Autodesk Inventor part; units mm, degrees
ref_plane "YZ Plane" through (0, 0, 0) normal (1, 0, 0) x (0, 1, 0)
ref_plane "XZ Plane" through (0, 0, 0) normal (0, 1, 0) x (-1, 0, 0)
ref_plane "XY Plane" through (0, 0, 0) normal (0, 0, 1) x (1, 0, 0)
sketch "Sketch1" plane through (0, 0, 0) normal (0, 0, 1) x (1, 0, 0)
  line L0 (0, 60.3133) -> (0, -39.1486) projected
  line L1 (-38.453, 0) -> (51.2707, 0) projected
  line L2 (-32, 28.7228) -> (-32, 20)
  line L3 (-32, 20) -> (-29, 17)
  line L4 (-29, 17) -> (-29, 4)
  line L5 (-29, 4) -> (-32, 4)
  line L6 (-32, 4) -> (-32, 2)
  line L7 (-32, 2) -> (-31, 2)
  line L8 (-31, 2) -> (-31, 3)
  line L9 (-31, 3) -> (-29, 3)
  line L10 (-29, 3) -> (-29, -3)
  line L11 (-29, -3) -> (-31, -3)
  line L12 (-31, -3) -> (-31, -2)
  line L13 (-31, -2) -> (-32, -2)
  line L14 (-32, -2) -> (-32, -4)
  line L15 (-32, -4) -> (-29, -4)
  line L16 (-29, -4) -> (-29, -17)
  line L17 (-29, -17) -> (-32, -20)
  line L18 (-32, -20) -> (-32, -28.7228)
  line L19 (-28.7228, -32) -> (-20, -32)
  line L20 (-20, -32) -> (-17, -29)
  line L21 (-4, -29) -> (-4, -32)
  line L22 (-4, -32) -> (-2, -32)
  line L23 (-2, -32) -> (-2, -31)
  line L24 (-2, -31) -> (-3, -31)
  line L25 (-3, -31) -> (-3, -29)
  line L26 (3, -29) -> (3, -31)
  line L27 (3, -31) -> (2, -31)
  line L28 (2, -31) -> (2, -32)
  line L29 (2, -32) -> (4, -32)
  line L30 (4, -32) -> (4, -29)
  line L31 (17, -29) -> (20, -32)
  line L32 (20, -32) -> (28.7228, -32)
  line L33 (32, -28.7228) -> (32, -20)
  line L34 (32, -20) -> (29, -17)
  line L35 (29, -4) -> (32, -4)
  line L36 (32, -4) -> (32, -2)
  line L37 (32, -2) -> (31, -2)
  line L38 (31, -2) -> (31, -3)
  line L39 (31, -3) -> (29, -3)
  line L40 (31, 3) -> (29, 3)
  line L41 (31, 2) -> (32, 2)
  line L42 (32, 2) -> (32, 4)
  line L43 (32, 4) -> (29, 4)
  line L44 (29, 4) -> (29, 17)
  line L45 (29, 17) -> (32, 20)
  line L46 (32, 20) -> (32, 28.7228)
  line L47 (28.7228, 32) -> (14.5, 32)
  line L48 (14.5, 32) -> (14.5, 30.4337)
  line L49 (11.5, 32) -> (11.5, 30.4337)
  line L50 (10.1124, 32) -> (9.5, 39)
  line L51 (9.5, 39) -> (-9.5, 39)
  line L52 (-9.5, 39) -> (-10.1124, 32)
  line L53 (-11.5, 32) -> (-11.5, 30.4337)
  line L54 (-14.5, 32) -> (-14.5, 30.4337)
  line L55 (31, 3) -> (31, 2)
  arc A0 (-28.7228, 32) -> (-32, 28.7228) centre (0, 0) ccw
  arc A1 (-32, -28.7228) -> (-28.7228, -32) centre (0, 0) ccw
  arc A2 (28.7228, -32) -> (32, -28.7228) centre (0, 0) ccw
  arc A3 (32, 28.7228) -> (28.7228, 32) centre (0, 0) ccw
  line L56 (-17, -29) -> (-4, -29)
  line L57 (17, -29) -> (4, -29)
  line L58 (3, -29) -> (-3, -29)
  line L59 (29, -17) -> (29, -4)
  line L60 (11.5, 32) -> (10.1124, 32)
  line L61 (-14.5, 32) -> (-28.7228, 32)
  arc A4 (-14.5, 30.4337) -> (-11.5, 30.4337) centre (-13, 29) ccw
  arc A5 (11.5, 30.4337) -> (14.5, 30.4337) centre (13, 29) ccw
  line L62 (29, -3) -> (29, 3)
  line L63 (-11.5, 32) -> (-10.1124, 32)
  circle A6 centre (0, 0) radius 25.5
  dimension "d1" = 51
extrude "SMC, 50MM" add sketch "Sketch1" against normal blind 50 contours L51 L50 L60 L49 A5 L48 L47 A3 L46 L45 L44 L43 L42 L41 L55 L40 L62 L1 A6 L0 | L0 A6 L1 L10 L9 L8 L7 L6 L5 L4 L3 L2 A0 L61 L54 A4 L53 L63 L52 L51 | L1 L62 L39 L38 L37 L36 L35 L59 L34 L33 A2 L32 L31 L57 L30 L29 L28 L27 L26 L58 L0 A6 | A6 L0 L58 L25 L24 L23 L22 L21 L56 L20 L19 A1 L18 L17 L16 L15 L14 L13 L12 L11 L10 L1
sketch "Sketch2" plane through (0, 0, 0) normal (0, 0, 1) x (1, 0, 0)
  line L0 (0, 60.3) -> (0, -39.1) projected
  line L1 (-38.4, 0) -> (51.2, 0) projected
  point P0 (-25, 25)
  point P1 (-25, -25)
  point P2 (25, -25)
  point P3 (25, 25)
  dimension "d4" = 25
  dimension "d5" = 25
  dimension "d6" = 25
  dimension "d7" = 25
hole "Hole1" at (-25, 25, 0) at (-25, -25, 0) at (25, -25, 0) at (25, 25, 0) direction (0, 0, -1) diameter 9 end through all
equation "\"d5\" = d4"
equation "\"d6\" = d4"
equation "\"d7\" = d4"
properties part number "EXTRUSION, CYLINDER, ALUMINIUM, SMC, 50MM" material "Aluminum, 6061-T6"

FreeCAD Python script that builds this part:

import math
import FreeCAD as App
import Part
import Sketcher

V = App.Vector
Q = App.Units.Quantity

doc = App.newDocument("Part")
params = doc.addObject("Spreadsheet::Sheet", "Params")
for row, (alias, value) in enumerate([
    ("sketch1_diameter", "51 mm"),
    ("sketch1_radius", "43 mm"),
    ("sketch1_width", "19 mm"),
    ("sketch1_width2", "3 mm"),
    ("sketch1_width3", "1 mm"),
    ("pad1_length", "50 mm"),
    ("sketch2_diameter", "9 mm"),
    ("hole_diameter", "9 mm"),
], start=1):
    params.set(f"A{row}", alias)
    params.set(f"B{row}", "=" + value)
    params.setAlias(f"B{row}", alias)

body = doc.addObject("PartDesign::Body", "Body")

# Sketch on XY plane
sketch1 = doc.addObject("Sketcher::SketchObject", "Sketch")
body.addObject(sketch1)
sketch1.AttachmentSupport = (doc.XY_Plane, [""])
sketch1.MapMode = "FlatFace"
sketch1.addGeometry([
    Part.LineSegment(V(9.5, 39, 0), V(-9.5, 39, 0)),  # 0
    Part.LineSegment(V(-9.5, 39, 0), V(-10.1, 32, 0)),  # 1
    Part.LineSegment(V(-10.1, 32, 0), V(-11.5, 32, 0)),  # 2
    Part.LineSegment(V(-11.5, 32, 0), V(-11.5, 30.4, 0)),  # 3
    Part.ArcOfCircle(Part.Circle(V(-13, 29, 0), V(0, 0, 1), 2.1), math.radians(136), math.radians(404)),  # 4
    Part.LineSegment(V(-14.5, 30.4, 0), V(-14.5, 32, 0)),  # 5
    Part.LineSegment(V(-14.5, 32, 0), V(-28.7, 32, 0)),  # 6
    Part.ArcOfCircle(Part.Circle(V(0, 0, 0), V(0, 0, 1), 43), math.radians(131.91), math.radians(138.09)),  # 7
    Part.LineSegment(V(-32, 28.7, 0), V(-32, 20, 0)),  # 8
    Part.LineSegment(V(-32, 20, 0), V(-29, 17, 0)),  # 9
    Part.LineSegment(V(-29, 17, 0), V(-29, 4, 0)),  # 10
    Part.LineSegment(V(-29, 4, 0), V(-32, 4, 0)),  # 11
    Part.LineSegment(V(-32, 4, 0), V(-32, 2, 0)),  # 12
    Part.LineSegment(V(-32, 2, 0), V(-31, 2, 0)),  # 13
    Part.LineSegment(V(-31, 2, 0), V(-31, 3, 0)),  # 14
    Part.LineSegment(V(-31, 3, 0), V(-29, 3, 0)),  # 15
    Part.LineSegment(V(-29, 3, 0), V(-29, -3, 0)),  # 16
    Part.LineSegment(V(-29, -3, 0), V(-31, -3, 0)),  # 17
    Part.LineSegment(V(-31, -3, 0), V(-31, -2, 0)),  # 18
    Part.LineSegment(V(-31, -2, 0), V(-32, -2, 0)),  # 19
    Part.LineSegment(V(-32, -2, 0), V(-32, -4, 0)),  # 20
    Part.LineSegment(V(-32, -4, 0), V(-29, -4, 0)),  # 21
    Part.LineSegment(V(-29, -4, 0), V(-29, -17, 0)),  # 22
    Part.LineSegment(V(-29, -17, 0), V(-32, -20, 0)),  # 23
    Part.LineSegment(V(-32, -20, 0), V(-32, -28.7, 0)),  # 24
    Part.ArcOfCircle(Part.Circle(V(0, 0, 0), V(0, 0, 1), 43), math.radians(-138.09), math.radians(-131.91)),  # 25
    Part.LineSegment(V(-28.7, -32, 0), V(-20, -32, 0)),  # 26
    Part.LineSegment(V(-20, -32, 0), V(-17, -29, 0)),  # 27
    Part.LineSegment(V(-17, -29, 0), V(-4, -29, 0)),  # 28
    Part.LineSegment(V(-4, -29, 0), V(-4, -32, 0)),  # 29
    Part.LineSegment(V(-4, -32, 0), V(-2, -32, 0)),  # 30
    Part.LineSegment(V(-2, -32, 0), V(-2, -31, 0)),  # 31
    Part.LineSegment(V(-2, -31, 0), V(-3, -31, 0)),  # 32
    Part.LineSegment(V(-3, -31, 0), V(-3, -29, 0)),  # 33
    Part.LineSegment(V(-3, -29, 0), V(3, -29, 0)),  # 34
    Part.LineSegment(V(3, -29, 0), V(3, -31, 0)),  # 35
    Part.LineSegment(V(3, -31, 0), V(2, -31, 0)),  # 36
    Part.LineSegment(V(2, -31, 0), V(2, -32, 0)),  # 37
    Part.LineSegment(V(2, -32, 0), V(4, -32, 0)),  # 38
    Part.LineSegment(V(4, -32, 0), V(4, -29, 0)),  # 39
    Part.LineSegment(V(4, -29, 0), V(17, -29, 0)),  # 40
    Part.LineSegment(V(17, -29, 0), V(20, -32, 0)),  # 41
    Part.LineSegment(V(20, -32, 0), V(28.7, -32, 0)),  # 42
    Part.ArcOfCircle(Part.Circle(V(0, 0, 0), V(0, 0, 1), 43), math.radians(-48.09), math.radians(-41.91)),  # 43
    Part.LineSegment(V(32, -28.7, 0), V(32, -20, 0)),  # 44
    Part.LineSegment(V(32, -20, 0), V(29, -17, 0)),  # 45
    Part.LineSegment(V(29, -17, 0), V(29, -4, 0)),  # 46
    Part.LineSegment(V(29, -4, 0), V(32, -4, 0)),  # 47
    Part.LineSegment(V(32, -4, 0), V(32, -2, 0)),  # 48
    Part.LineSegment(V(32, -2, 0), V(31, -2, 0)),  # 49
    Part.LineSegment(V(31, -2, 0), V(31, -3, 0)),  # 50
    Part.LineSegment(V(31, -3, 0), V(29, -3, 0)),  # 51
    Part.LineSegment(V(29, -3, 0), V(29, 3, 0)),  # 52
    Part.LineSegment(V(29, 3, 0), V(31, 3, 0)),  # 53
    Part.LineSegment(V(31, 3, 0), V(31, 2, 0)),  # 54
    Part.LineSegment(V(31, 2, 0), V(32, 2, 0)),  # 55
    Part.LineSegment(V(32, 2, 0), V(32, 4, 0)),  # 56
    Part.LineSegment(V(32, 4, 0), V(29, 4, 0)),  # 57
    Part.LineSegment(V(29, 4, 0), V(29, 17, 0)),  # 58
    Part.LineSegment(V(29, 17, 0), V(32, 20, 0)),  # 59
    Part.LineSegment(V(32, 20, 0), V(32, 28.7, 0)),  # 60
    Part.ArcOfCircle(Part.Circle(V(0, 0, 0), V(0, 0, 1), 43), math.radians(41.91), math.radians(48.09)),  # 61
    Part.LineSegment(V(28.7, 32, 0), V(14.5, 32, 0)),  # 62
    Part.LineSegment(V(14.5, 32, 0), V(14.5, 30.4, 0)),  # 63
    Part.ArcOfCircle(Part.Circle(V(13, 29, 0), V(0, 0, 1), 2.1), math.radians(136), math.radians(404)),  # 64
    Part.LineSegment(V(11.5, 30.4, 0), V(11.5, 32, 0)),  # 65
    Part.LineSegment(V(11.5, 32, 0), V(10.1, 32, 0)),  # 66
    Part.LineSegment(V(10.1, 32, 0), V(9.5, 39, 0)),  # 67
    Part.Circle(V(0, 0, 0), V(0, 0, 1), 25.5),  # 68
], False)
sketch1.addConstraint([
    Sketcher.Constraint("Coincident", 0, 2, 1, 1),
    Sketcher.Constraint("Coincident", 1, 2, 2, 1),
    Sketcher.Constraint("Coincident", 2, 2, 3, 1),
    Sketcher.Constraint("Coincident", 3, 2, 4, 2),
    Sketcher.Constraint("Coincident", 4, 1, 5, 1),
    Sketcher.Constraint("Coincident", 5, 2, 6, 1),
    Sketcher.Constraint("Coincident", 6, 2, 7, 1),
    Sketcher.Constraint("Coincident", 7, 2, 8, 1),
    Sketcher.Constraint("Coincident", 8, 2, 9, 1),
    Sketcher.Constraint("Coincident", 9, 2, 10, 1),
    Sketcher.Constraint("Coincident", 10, 2, 11, 1),
    Sketcher.Constraint("Coincident", 11, 2, 12, 1),
    Sketcher.Constraint("Coincident", 12, 2, 13, 1),
    Sketcher.Constraint("Coincident", 13, 2, 14, 1),
    Sketcher.Constraint("Coincident", 14, 2, 15, 1),
    Sketcher.Constraint("Coincident", 15, 2, 16, 1),
    Sketcher.Constraint("Coincident", 16, 2, 17, 1),
    Sketcher.Constraint("Coincident", 17, 2, 18, 1),
    Sketcher.Constraint("Coincident", 18, 2, 19, 1),
    Sketcher.Constraint("Coincident", 19, 2, 20, 1),
    Sketcher.Constraint("Coincident", 20, 2, 21, 1),
    Sketcher.Constraint("Coincident", 21, 2, 22, 1),
    Sketcher.Constraint("Coincident", 22, 2, 23, 1),
    Sketcher.Constraint("Coincident", 23, 2, 24, 1),
    Sketcher.Constraint("Coincident", 24, 2, 25, 1),
    Sketcher.Constraint("Coincident", 25, 2, 26, 1),
    Sketcher.Constraint("Coincident", 26, 2, 27, 1),
    Sketcher.Constraint("Coincident", 27, 2, 28, 1),
    Sketcher.Constraint("Coincident", 28, 2, 29, 1),
    Sketcher.Constraint("Coincident", 29, 2, 30, 1),
    Sketcher.Constraint("Coincident", 30, 2, 31, 1),
    Sketcher.Constraint("Coincident", 31, 2, 32, 1),
    Sketcher.Constraint("Coincident", 32, 2, 33, 1),
    Sketcher.Constraint("Coincident", 33, 2, 34, 1),
    Sketcher.Constraint("Coincident", 34, 2, 35, 1),
    Sketcher.Constraint("Coincident", 35, 2, 36, 1),
    Sketcher.Constraint("Coincident", 36, 2, 37, 1),
    Sketcher.Constraint("Coincident", 37, 2, 38, 1),
    Sketcher.Constraint("Coincident", 38, 2, 39, 1),
    Sketcher.Constraint("Coincident", 39, 2, 40, 1),
    Sketcher.Constraint("Coincident", 40, 2, 41, 1),
    Sketcher.Constraint("Coincident", 41, 2, 42, 1),
    Sketcher.Constraint("Coincident", 42, 2, 43, 1),
    Sketcher.Constraint("Coincident", 43, 2, 44, 1),
    Sketcher.Constraint("Coincident", 44, 2, 45, 1),
    Sketcher.Constraint("Coincident", 45, 2, 46, 1),
    Sketcher.Constraint("Coincident", 46, 2, 47, 1),
    Sketcher.Constraint("Coincident", 47, 2, 48, 1),
    Sketcher.Constraint("Coincident", 48, 2, 49, 1),
    Sketcher.Constraint("Coincident", 49, 2, 50, 1),
    Sketcher.Constraint("Coincident", 50, 2, 51, 1),
    Sketcher.Constraint("Coincident", 51, 2, 52, 1),
    Sketcher.Constraint("Coincident", 52, 2, 53, 1),
    Sketcher.Constraint("Coincident", 53, 2, 54, 1),
    Sketcher.Constraint("Coincident", 54, 2, 55, 1),
    Sketcher.Constraint("Coincident", 55, 2, 56, 1),
    Sketcher.Constraint("Coincident", 56, 2, 57, 1),
    Sketcher.Constraint("Coincident", 57, 2, 58, 1),
    Sketcher.Constraint("Coincident", 58, 2, 59, 1),
    Sketcher.Constraint("Coincident", 59, 2, 60, 1),
    Sketcher.Constraint("Coincident", 60, 2, 61, 1),
    Sketcher.Constraint("Coincident", 61, 2, 62, 1),
    Sketcher.Constraint("Coincident", 62, 2, 63, 1),
    Sketcher.Constraint("Coincident", 63, 2, 64, 2),
    Sketcher.Constraint("Coincident", 64, 1, 65, 1),
    Sketcher.Constraint("Coincident", 65, 2, 66, 1),
    Sketcher.Constraint("Coincident", 66, 2, 67, 1),
    Sketcher.Constraint("Coincident", 67, 2, 0, 1),
    Sketcher.Constraint("Horizontal", 0),
    Sketcher.Constraint("Horizontal", 2),
    Sketcher.Constraint("Vertical", 3),
    Sketcher.Constraint("Vertical", 5),
    Sketcher.Constraint("Horizontal", 6),
    Sketcher.Constraint("Vertical", 8),
    Sketcher.Constraint("Vertical", 10),
    Sketcher.Constraint("Horizontal", 11),
    Sketcher.Constraint("Vertical", 12),
    Sketcher.Constraint("Horizontal", 13),
    Sketcher.Constraint("Vertical", 14),
    Sketcher.Constraint("Horizontal", 15),
    Sketcher.Constraint("Vertical", 16),
    Sketcher.Constraint("Horizontal", 17),
    Sketcher.Constraint("Vertical", 18),
    Sketcher.Constraint("Horizontal", 19),
    Sketcher.Constraint("Vertical", 20),
    Sketcher.Constraint("Horizontal", 21),
    Sketcher.Constraint("Vertical", 22),
    Sketcher.Constraint("Vertical", 24),
    Sketcher.Constraint("Horizontal", 26),
    Sketcher.Constraint("Horizontal", 28),
    Sketcher.Constraint("Vertical", 29),
    Sketcher.Constraint("Horizontal", 30),
    Sketcher.Constraint("Vertical", 31),
    Sketcher.Constraint("Horizontal", 32),
    Sketcher.Constraint("Vertical", 33),
    Sketcher.Constraint("Horizontal", 34),
    Sketcher.Constraint("Vertical", 35),
    Sketcher.Constraint("Horizontal", 36),
    Sketcher.Constraint("Vertical", 37),
    Sketcher.Constraint("Horizontal", 38),
    Sketcher.Constraint("Vertical", 39),
    Sketcher.Constraint("Horizontal", 40),
    Sketcher.Constraint("Horizontal", 42),
    Sketcher.Constraint("Vertical", 44),
    Sketcher.Constraint("Vertical", 46),
    Sketcher.Constraint("Horizontal", 47),
    Sketcher.Constraint("Vertical", 48),
    Sketcher.Constraint("Horizontal", 49),
    Sketcher.Constraint("Vertical", 50),
    Sketcher.Constraint("Horizontal", 51),
    Sketcher.Constraint("Vertical", 52),
    Sketcher.Constraint("Horizontal", 53),
    Sketcher.Constraint("Vertical", 54),
    Sketcher.Constraint("Horizontal", 55),
    Sketcher.Constraint("Vertical", 56),
    Sketcher.Constraint("Horizontal", 57),
    Sketcher.Constraint("Vertical", 58),
    Sketcher.Constraint("Vertical", 60),
    Sketcher.Constraint("Horizontal", 62),
    Sketcher.Constraint("Vertical", 63),
    Sketcher.Constraint("Vertical", 65),
    Sketcher.Constraint("Horizontal", 66),
    Sketcher.Constraint("Coincident", 7, 3, -1, 1),
    Sketcher.Constraint("Coincident", 25, 3, -1, 1),
    Sketcher.Constraint("Coincident", 43, 3, -1, 1),
    Sketcher.Constraint("Coincident", 61, 3, -1, 1),
    Sketcher.Constraint("Coincident", 68, 3, -1, 1),
    Sketcher.Constraint("Equal", 7, 25),
    Sketcher.Constraint("Equal", 25, 43),
    Sketcher.Constraint("Equal", 43, 61),
    Sketcher.Constraint("Equal", 4, 64),
    Sketcher.Constraint("Symmetric", 8, 2, 44, 2, -1, 1),
    Sketcher.Constraint("Symmetric", 9, 2, 45, 2, -1, 1),
    Sketcher.Constraint("Symmetric", 11, 2, 47, 2, -1, 1),
    Sketcher.Constraint("Symmetric", 13, 2, 49, 2, -1, 1),
    Sketcher.Constraint("Symmetric", 15, 2, 51, 2, -1, 1),
    Sketcher.Constraint("Symmetric", 17, 2, 53, 2, -1, 1),
    Sketcher.Constraint("Symmetric", 19, 2, 55, 2, -1, 1),
    Sketcher.Constraint("Symmetric", 21, 2, 57, 2, -1, 1),
    Sketcher.Constraint("Symmetric", 23, 2, 59, 2, -1, 1),
    Sketcher.Constraint("Symmetric", 4, 3, 64, 3, -2),
    Sketcher.Constraint("Symmetric", 32, 2, 35, 2, -2),
    Sketcher.Constraint("Symmetric", 30, 2, 37, 2, -2),
    Sketcher.Constraint("Symmetric", 28, 2, 39, 2, -2),
    Sketcher.Constraint("Symmetric", 26, 2, 41, 2, -2),
    Sketcher.Constraint("Symmetric", 23, 2, 44, 2, -2),
    Sketcher.Constraint("Symmetric", 22, 2, 45, 2, -2),
    Sketcher.Constraint("Symmetric", 20, 2, 47, 2, -2),
    Sketcher.Constraint("Symmetric", 18, 2, 49, 2, -2),
    Sketcher.Constraint("Symmetric", 5, 2, 62, 2, -2),
    Sketcher.Constraint("Symmetric", 2, 2, 65, 2, -2),
    Sketcher.Constraint("Perpendicular", 9, 23),
    Sketcher.Constraint("Parallel", 23, 27),
    Sketcher.Constraint("Perpendicular", 27, 41),
    Sketcher.Constraint("Perpendicular", 45, 59),
    Sketcher.Constraint("Horizontal", 3, 2, 4, 1),
    Sketcher.Constraint("Horizontal", 2, 2, 5, 2),
    Sketcher.Constraint("Horizontal", 26, 2, 29, 2),
    Sketcher.Constraint("Horizontal", 28, 2, 33, 2),
    Sketcher.Constraint("Horizontal", 17, 2, 50, 2),
    Sketcher.Constraint("Vertical", 8, 2, 11, 2),
    Sketcher.Constraint("Vertical", 10, 2, 15, 2),
    Sketcher.Constraint("Vertical", 6, 2, 25, 2),
    Sketcher.Constraint("Equal", 17, 30),
    Sketcher.Constraint("Equal", 19, 32),
    Sketcher.Constraint("Equal", 2, 66),
    Sketcher.Constraint("Equal", 42, 8),
    Sketcher.Constraint("Equal", 40, 10),
    Sketcher.Constraint("Equal", 53, 12),
    Sketcher.Constraint("Equal", 55, 14),
    Sketcher.Constraint("Equal", 34, 16),
    Sketcher.Constraint("Equal", 57, 29),
    Sketcher.Constraint("Equal", 18, 31),
    Sketcher.Constraint("Equal", 1, 67),
    Sketcher.Constraint("Diameter", 68, Q("51 mm")),
    Sketcher.Constraint("Radius", 7, Q("43 mm")),
    Sketcher.Constraint("DistanceX", 0, 2, 0, 1, Q("19 mm")),
    Sketcher.Constraint("DistanceX", 11, 2, 11, 1, Q("3 mm")),
    Sketcher.Constraint("DistanceX", 13, 1, 13, 2, Q("1 mm")),
    Sketcher.Constraint("DistanceX", 28, 1, 28, 2, Q("13 mm")),
    Sketcher.Constraint("DistanceX", 34, 1, 34, 2, Q("6 mm")),
    Sketcher.Constraint("Angle", 1, Q("-94.9998 deg")),
    Sketcher.Constraint("DistanceX", 4, 3, -1, 1, Q("13 mm")),
    Sketcher.Constraint("DistanceY", -1, 1, 4, 3, Q("29 mm")),
    Sketcher.Constraint("DistanceY", -1, 1, 0, 2, Q("39 mm")),
    Sketcher.Constraint("DistanceY", -1, 1, 1, 2, Q("32 mm")),
    Sketcher.Constraint("Radius", 4, Q("2.075 mm")),
    Sketcher.Constraint("DistanceX", 2, 2, -1, 1, Q("11.5 mm")),
])
sketch1.setExpression("Constraints[174]", "Params.sketch1_diameter")
sketch1.setExpression("Constraints[175]", "Params.sketch1_radius")
sketch1.setExpression("Constraints[176]", "Params.sketch1_width")
sketch1.setExpression("Constraints[177]", "Params.sketch1_width2")
sketch1.setExpression("Constraints[178]", "Params.sketch1_width3")
pad1 = doc.addObject("PartDesign::Pad", "Pad")
body.addObject(pad1)
pad1.Profile = sketch1
pad1.setExpression("Length", "Params.pad1_length")
pad1.Reversed = True

# Sketch on XY plane
sketch2 = doc.addObject("Sketcher::SketchObject", "Sketch001")
body.addObject(sketch2)
sketch2.AttachmentSupport = (doc.XY_Plane, [""])
sketch2.MapMode = "FlatFace"
sketch2.addGeometry([
    Part.Circle(V(-25, 25, 0), V(0, 0, 1), 4.5),
    Part.Circle(V(-25, -25, 0), V(0, 0, 1), 4.5),
    Part.Circle(V(25, -25, 0), V(0, 0, 1), 4.5),
    Part.Circle(V(25, 25, 0), V(0, 0, 1), 4.5),
], False)
sketch2.addConstraint([
    Sketcher.Constraint("Equal", 0, 1),
    Sketcher.Constraint("Equal", 1, 2),
    Sketcher.Constraint("Equal", 2, 3),
    Sketcher.Constraint("Symmetric", 0, 3, 2, 3, -1, 1),
    Sketcher.Constraint("Symmetric", 1, 3, 3, 3, -1, 1),
    Sketcher.Constraint("Symmetric", 1, 3, 2, 3, -2),
    Sketcher.Constraint("Diameter", 0, Q("9 mm")),
    Sketcher.Constraint("DistanceX", 0, 3, -1, 1, Q("25 mm")),
    Sketcher.Constraint("DistanceY", -1, 1, 0, 3, Q("25 mm")),
])
sketch2.setExpression("Constraints[6]", "Params.sketch2_diameter")
doc.recompute()
hole = doc.addObject("PartDesign::Hole", "Hole")
body.addObject(hole)
hole.Profile = sketch2
hole.ThreadType = "None"
hole.setExpression("Diameter", "Params.hole_diameter")
hole.DepthType = "ThroughAll"

doc.recompute()
